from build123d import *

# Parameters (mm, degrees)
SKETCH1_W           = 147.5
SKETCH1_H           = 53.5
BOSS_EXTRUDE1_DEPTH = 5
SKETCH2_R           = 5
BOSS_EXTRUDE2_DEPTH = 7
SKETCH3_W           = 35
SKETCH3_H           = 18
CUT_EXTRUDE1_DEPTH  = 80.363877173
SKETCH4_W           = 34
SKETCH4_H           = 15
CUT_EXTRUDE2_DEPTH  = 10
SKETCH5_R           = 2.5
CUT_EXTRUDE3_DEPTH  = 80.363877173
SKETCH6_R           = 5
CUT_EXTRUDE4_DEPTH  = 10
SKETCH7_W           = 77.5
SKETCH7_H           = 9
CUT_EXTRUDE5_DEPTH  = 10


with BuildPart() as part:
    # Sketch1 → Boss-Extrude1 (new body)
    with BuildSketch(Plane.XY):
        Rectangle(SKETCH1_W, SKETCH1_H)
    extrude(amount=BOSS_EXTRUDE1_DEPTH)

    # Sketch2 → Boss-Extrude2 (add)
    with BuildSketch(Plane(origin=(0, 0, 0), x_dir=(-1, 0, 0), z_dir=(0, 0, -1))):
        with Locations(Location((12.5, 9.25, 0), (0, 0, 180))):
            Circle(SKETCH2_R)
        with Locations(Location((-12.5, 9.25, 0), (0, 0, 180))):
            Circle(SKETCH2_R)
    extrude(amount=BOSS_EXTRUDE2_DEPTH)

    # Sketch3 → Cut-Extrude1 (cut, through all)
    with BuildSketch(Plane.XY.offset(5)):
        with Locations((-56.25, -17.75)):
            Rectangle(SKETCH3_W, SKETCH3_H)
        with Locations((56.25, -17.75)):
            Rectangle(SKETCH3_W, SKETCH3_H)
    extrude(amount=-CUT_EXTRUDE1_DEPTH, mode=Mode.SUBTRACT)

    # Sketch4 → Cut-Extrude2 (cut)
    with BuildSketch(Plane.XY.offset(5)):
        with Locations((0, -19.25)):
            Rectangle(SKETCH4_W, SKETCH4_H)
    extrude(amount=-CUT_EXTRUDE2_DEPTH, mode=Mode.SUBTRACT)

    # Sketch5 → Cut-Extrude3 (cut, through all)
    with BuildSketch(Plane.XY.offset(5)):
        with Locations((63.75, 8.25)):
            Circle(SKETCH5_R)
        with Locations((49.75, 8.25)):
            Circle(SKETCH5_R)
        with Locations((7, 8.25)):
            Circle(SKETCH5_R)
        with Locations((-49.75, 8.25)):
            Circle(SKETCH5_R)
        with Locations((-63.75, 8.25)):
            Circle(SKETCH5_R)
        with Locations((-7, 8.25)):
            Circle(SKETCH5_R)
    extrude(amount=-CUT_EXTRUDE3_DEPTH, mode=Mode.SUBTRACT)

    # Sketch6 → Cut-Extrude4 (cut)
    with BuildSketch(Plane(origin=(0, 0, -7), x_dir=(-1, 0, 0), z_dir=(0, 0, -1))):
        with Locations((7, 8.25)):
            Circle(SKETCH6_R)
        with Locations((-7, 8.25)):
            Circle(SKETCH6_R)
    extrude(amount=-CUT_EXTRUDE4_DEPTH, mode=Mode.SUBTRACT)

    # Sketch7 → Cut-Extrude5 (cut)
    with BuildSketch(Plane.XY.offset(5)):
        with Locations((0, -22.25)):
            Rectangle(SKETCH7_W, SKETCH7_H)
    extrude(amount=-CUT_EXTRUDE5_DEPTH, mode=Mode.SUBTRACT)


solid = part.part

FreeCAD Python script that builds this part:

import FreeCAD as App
import Part
import Sketcher

V = App.Vector

doc = App.newDocument("Part")
body = doc.addObject("PartDesign::Body", "Body")

sketch1 = body.newObject("Sketcher::SketchObject", "Sketch")
sketch1.AttachmentSupport = (doc.getObject("XY_Plane"), [""])
sketch1.MapMode = "FlatFace"
sketch1.addGeometry([
    Part.LineSegment(V(-74, 27, 0), V(-74, -27, 0)),
    Part.LineSegment(V(-74, -27, 0), V(74, -27, 0)),
    Part.LineSegment(V(74, -27, 0), V(74, 27, 0)),
    Part.LineSegment(V(74, 27, 0), V(-74, 27, 0)),
], False)
sketch1.addConstraint([
    Sketcher.Constraint("Coincident", 0, 2, 1, 1),
    Sketcher.Constraint("Coincident", 1, 2, 2, 1),
    Sketcher.Constraint("Coincident", 2, 2, 3, 1),
    Sketcher.Constraint("Coincident", 3, 2, 0, 1),
    Sketcher.Constraint("Vertical", 0),
    Sketcher.Constraint("Horizontal", 1),
    Sketcher.Constraint("Vertical", 2),
    Sketcher.Constraint("Horizontal", 3),
    Sketcher.Constraint("Symmetric", 0, 2, 2, 2, -1, 1),
    Sketcher.Constraint("DistanceX", 1, 1, 1, 2, 147.5),
    Sketcher.Constraint("DistanceY", 0, 2, 0, 1, 53.5),
])
pad1 = body.newObject("PartDesign::Pad", "Pad")
pad1.Profile = sketch1
pad1.Length = 5

sketch2 = body.newObject("Sketcher::SketchObject", "Sketch001")
sketch2.AttachmentSupport = (doc.getObject("XY_Plane"), [""])
sketch2.MapMode = "FlatFace"
sketch2.addGeometry([
    Part.Circle(V(-12, 9, 0), V(0, 0, 1), 5),
    Part.Circle(V(12, 9, 0), V(0, 0, 1), 5),
], False)
sketch2.addConstraint([
    Sketcher.Constraint("Equal", 0, 1),
    Sketcher.Constraint("Symmetric", 0, 3, 1, 3, -2),
    Sketcher.Constraint("Diameter", 0, 10.0),
    Sketcher.Constraint("DistanceX", 0, 3, 1, 3, 25.0),
    Sketcher.Constraint("DistanceY", -1, 1, 0, 3, 9.25),
])
pad2 = body.newObject("PartDesign::Pad", "Pad001")
pad2.Profile = sketch2
pad2.Length = 7
pad2.Reversed = True

sketch3 = body.newObject("Sketcher::SketchObject", "Sketch002")
sketch3.AttachmentSupport = (doc.getObject("XY_Plane"), [""])
sketch3.MapMode = "FlatFace"
sketch3.AttachmentOffset = App.Placement(V(0, 0, 5), App.Rotation())
sketch3.addGeometry([
    Part.LineSegment(V(-74, -9, 0), V(-74, -27, 0)),
    Part.LineSegment(V(-74, -27, 0), V(-39, -27, 0)),
    Part.LineSegment(V(-39, -27, 0), V(-39, -9, 0)),
    Part.LineSegment(V(-39, -9, 0), V(-74, -9, 0)),
    Part.LineSegment(V(39, -9, 0), V(39, -27, 0)),
    Part.LineSegment(V(39, -27, 0), V(74, -27, 0)),
    Part.LineSegment(V(74, -27, 0), V(74, -9, 0)),
    Part.LineSegment(V(74, -9, 0), V(39, -9, 0)),
], False)
sketch3.addConstraint([
    Sketcher.Constraint("Coincident", 0, 2, 1, 1),
    Sketcher.Constraint("Coincident", 1, 2, 2, 1),
    Sketcher.Constraint("Coincident", 2, 2, 3, 1),
    Sketcher.Constraint("Coincident", 3, 2, 0, 1),
    Sketcher.Constraint("Coincident", 4, 2, 5, 1),
    Sketcher.Constraint("Coincident", 5, 2, 6, 1),
    Sketcher.Constraint("Coincident", 6, 2, 7, 1),
    Sketcher.Constraint("Coincident", 7, 2, 4, 1),
    Sketcher.Constraint("Vertical", 0),
    Sketcher.Constraint("Horizontal", 1),
    Sketcher.Constraint("Vertical", 2),
    Sketcher.Constraint("Horizontal", 3),
    Sketcher.Constraint("Vertical", 4),
    Sketcher.Constraint("Horizontal", 5),
    Sketcher.Constraint("Vertical", 6),
    Sketcher.Constraint("Horizontal", 7),
    Sketcher.Constraint("Symmetric", 1, 2, 4, 2, -2),
    Sketcher.Constraint("Symmetric", 3, 2, 6, 2, -2),
    Sketcher.Constraint("DistanceX", 1, 1, 1, 2, 35.0),
    Sketcher.Constraint("DistanceY", 0, 2, 0, 1, 18.0),
    Sketcher.Constraint("DistanceX", 1, 2, 4, 2, 77.5),
    Sketcher.Constraint("DistanceY", 0, 2, -1, 1, 26.75),
])
pocket1 = body.newObject("PartDesign::Pocket", "Pocket")
pocket1.Profile = sketch3
pocket1.Type = "ThroughAll"

sketch4 = body.newObject("Sketcher::SketchObject", "Sketch003")
sketch4.AttachmentSupport = (doc.getObject("XY_Plane"), [""])
sketch4.MapMode = "FlatFace"
sketch4.AttachmentOffset = App.Placement(V(0, 0, 5), App.Rotation())
sketch4.addGeometry([
    Part.LineSegment(V(-17, -12, 0), V(-17, -27, 0)),
    Part.LineSegment(V(-17, -27, 0), V(17, -27, 0)),
    Part.LineSegment(V(17, -27, 0), V(17, -12, 0)),
    Part.LineSegment(V(17, -12, 0), V(-17, -12, 0)),
], False)
sketch4.addConstraint([
    Sketcher.Constraint("Coincident", 0, 2, 1, 1),
    Sketcher.Constraint("Coincident", 1, 2, 2, 1),
    Sketcher.Constraint("Coincident", 2, 2, 3, 1),
    Sketcher.Constraint("Coincident", 3, 2, 0, 1),
    Sketcher.Constraint("Vertical", 0),
    Sketcher.Constraint("Horizontal", 1),
    Sketcher.Constraint("Vertical", 2),
    Sketcher.Constraint("Horizontal", 3),
    Sketcher.Constraint("DistanceX", 1, 1, 1, 2, 34.0),
    Sketcher.Constraint("DistanceY", 0, 2, 0, 1, 15.0),
    Sketcher.Constraint("DistanceX", 0, 2, -1, 1, 17.0),
    Sketcher.Constraint("DistanceY", 0, 2, -1, 1, 26.75),
])
pocket2 = body.newObject("PartDesign::Pocket", "Pocket001")
pocket2.Profile = sketch4
pocket2.Length = 10

sketch5 = body.newObject("Sketcher::SketchObject", "Sketch004")
sketch5.AttachmentSupport = (doc.getObject("XY_Plane"), [""])
sketch5.MapMode = "FlatFace"
sketch5.AttachmentOffset = App.Placement(V(0, 0, 5), App.Rotation())
sketch5.addGeometry([
    Part.Circle(V(63.8, 8.2, 0), V(0, 0, 1), 2.5),
    Part.Circle(V(49.8, 8.2, 0), V(0, 0, 1), 2.5),
    Part.Circle(V(7, 8.2, 0), V(0, 0, 1), 2.5),
    Part.Circle(V(-49.8, 8.2, 0), V(0, 0, 1), 2.5),
    Part.Circle(V(-63.8, 8.2, 0), V(0, 0, 1), 2.5),
    Part.Circle(V(-7, 8.2, 0), V(0, 0, 1), 2.5),
], False)
sketch5.addConstraint([
    Sketcher.Constraint("Equal", 0, 1),
    Sketcher.Constraint("Equal", 1, 2),
    Sketcher.Constraint("Equal", 2, 3),
    Sketcher.Constraint("Equal", 3, 4),
    Sketcher.Constraint("Equal", 4, 5),
    Sketcher.Constraint("Symmetric", 1, 3, 3, 3, -2),
    Sketcher.Constraint("Symmetric", 0, 3, 4, 3, -2),
    Sketcher.Constraint("Symmetric", 2, 3, 5, 3, -2),
    Sketcher.Constraint("Horizontal", 0, 3, 1, 3),
    Sketcher.Constraint("Horizontal", 1, 3, 2, 3),
    Sketcher.Constraint("Diameter", 0, 5.0),
    Sketcher.Constraint("DistanceX", -1, 1, 2, 3, 7.0),
    Sketcher.Constraint("DistanceX", 1, 3, 0, 3, 14.0),
    Sketcher.Constraint("DistanceX", 3, 3, 1, 3, 99.5),
    Sketcher.Constraint("DistanceY", -1, 1, 0, 3, 8.25),
])
pocket3 = body.newObject("PartDesign::Pocket", "Pocket002")
pocket3.Profile = sketch5
pocket3.Type = "ThroughAll"

sketch6 = body.newObject("Sketcher::SketchObject", "Sketch005")
sketch6.AttachmentSupport = (doc.getObject("XY_Plane"), [""])
sketch6.MapMode = "FlatFace"
sketch6.AttachmentOffset = App.Placement(V(0, 0, -7), App.Rotation())
sketch6.addGeometry([
    Part.Circle(V(-7, 8, 0), V(0, 0, 1), 5),
    Part.Circle(V(7, 8, 0), V(0, 0, 1), 5),
], False)
sketch6.addConstraint([
    Sketcher.Constraint("Equal", 0, 1),
    Sketcher.Constraint("Symmetric", 0, 3, 1, 3, -2),
    Sketcher.Constraint("Diameter", 0, 10.0),
    Sketcher.Constraint("DistanceX", 0, 3, -1, 1, 7.0),
    Sketcher.Constraint("DistanceY", -1, 1, 0, 3, 8.25),
])
pocket4 = body.newObject("PartDesign::Pocket", "Pocket003")
pocket4.Profile = sketch6
pocket4.Length = 10
pocket4.Reversed = True

sketch7 = body.newObject("Sketcher::SketchObject", "Sketch006")
sketch7.AttachmentSupport = (doc.getObject("XY_Plane"), [""])
sketch7.MapMode = "FlatFace"
sketch7.AttachmentOffset = App.Placement(V(0, 0, 5), App.Rotation())
sketch7.addGeometry([
    Part.LineSegment(V(-39, -18, 0), V(-39, -27, 0)),
    Part.LineSegment(V(-39, -27, 0), V(39, -27, 0)),
    Part.LineSegment(V(39, -27, 0), V(39, -18, 0)),
    Part.LineSegment(V(39, -18, 0), V(-39, -18, 0)),
], False)
sketch7.addConstraint([
    Sketcher.Constraint("Coincident", 0, 2, 1, 1),
    Sketcher.Constraint("Coincident", 1, 2, 2, 1),
    Sketcher.Constraint("Coincident", 2, 2, 3, 1),
    Sketcher.Constraint("Coincident", 3, 2, 0, 1),
    Sketcher.Constraint("Vertical", 0),
    Sketcher.Constraint("Horizontal", 1),
    Sketcher.Constraint("Vertical", 2),
    Sketcher.Constraint("Horizontal", 3),
    Sketcher.Constraint("DistanceY", 0, 2, 0, 1, 9.0),
    Sketcher.Constraint("DistanceX", 1, 1, 1, 2, 77.5),
    Sketcher.Constraint("DistanceX", 0, 2, -1, 1, 38.75),
    Sketcher.Constraint("DistanceY", 0, 2, -1, 1, 26.75),
])
pocket5 = body.newObject("PartDesign::Pocket", "Pocket004")
pocket5.Profile = sketch7
pocket5.Length = 10

doc.recompute()
